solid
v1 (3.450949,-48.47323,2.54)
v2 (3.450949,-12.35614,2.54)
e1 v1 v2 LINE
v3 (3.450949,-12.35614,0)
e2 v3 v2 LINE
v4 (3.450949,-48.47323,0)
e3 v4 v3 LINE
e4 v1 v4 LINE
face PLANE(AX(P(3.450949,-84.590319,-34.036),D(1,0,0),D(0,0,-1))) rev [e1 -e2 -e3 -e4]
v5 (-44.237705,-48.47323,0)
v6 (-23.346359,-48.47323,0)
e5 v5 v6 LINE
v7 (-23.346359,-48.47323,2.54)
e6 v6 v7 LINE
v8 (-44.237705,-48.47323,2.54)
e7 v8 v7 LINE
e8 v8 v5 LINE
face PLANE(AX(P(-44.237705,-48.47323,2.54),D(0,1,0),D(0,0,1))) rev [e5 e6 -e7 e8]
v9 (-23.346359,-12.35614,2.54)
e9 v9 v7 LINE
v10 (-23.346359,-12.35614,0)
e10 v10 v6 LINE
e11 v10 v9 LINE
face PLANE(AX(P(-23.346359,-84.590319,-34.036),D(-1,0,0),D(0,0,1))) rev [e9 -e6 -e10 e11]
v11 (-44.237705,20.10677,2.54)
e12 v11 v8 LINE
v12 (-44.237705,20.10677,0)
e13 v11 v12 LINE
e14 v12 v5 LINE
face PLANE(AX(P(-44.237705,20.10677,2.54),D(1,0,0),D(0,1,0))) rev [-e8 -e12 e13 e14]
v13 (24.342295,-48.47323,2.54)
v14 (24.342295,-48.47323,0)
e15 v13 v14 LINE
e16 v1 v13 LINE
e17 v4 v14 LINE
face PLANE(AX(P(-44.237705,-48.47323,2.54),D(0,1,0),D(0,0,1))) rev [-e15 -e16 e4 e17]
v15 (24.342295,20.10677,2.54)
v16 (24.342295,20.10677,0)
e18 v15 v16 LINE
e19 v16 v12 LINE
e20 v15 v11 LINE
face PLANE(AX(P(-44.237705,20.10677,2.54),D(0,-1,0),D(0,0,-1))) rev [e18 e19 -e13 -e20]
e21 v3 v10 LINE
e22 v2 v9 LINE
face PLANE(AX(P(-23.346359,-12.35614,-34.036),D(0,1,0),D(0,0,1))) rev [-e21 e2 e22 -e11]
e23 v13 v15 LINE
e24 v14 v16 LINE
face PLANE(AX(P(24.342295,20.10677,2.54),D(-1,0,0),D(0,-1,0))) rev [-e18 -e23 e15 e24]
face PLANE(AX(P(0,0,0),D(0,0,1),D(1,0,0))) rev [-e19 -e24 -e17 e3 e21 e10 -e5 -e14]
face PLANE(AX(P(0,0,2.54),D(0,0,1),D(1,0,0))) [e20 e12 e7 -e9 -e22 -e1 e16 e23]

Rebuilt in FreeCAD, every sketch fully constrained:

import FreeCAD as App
import Part
import Sketcher
from FreeCAD import Vector
Q = App.Units.Quantity

doc = App.newDocument("Part")
params = doc.addObject("Spreadsheet::Sheet", "Params")
for row, (alias, value) in enumerate([
    ("sketch1_width", "2.7 in"),
    ("pad1_length", "0.1 in"),
    ("pocket1_length", "1.44 in"),
], start=1):
    params.set(f"A{row}", alias)
    params.set(f"B{row}", "=" + value)
    params.setAlias(f"B{row}", alias)

body = doc.addObject("PartDesign::Body", "Body")

# Sketch on XY plane
sketch1 = doc.addObject("Sketcher::SketchObject", "Sketch")
body.addObject(sketch1)
sketch1.AttachmentSupport = (doc.XY_Plane, [""])
sketch1.MapMode = "FlatFace"
sketch1.addGeometry(Part.LineSegment(Vector(-44, 20, 0), Vector(-44, -48, 0)), False)
sketch1.addGeometry(Part.LineSegment(Vector(-44, -48, 0), Vector(24, -48, 0)), False)
sketch1.addGeometry(Part.LineSegment(Vector(24, -48, 0), Vector(24, 20, 0)), False)
sketch1.addGeometry(Part.LineSegment(Vector(24, 20, 0), Vector(-44, 20, 0)), False)
sketch1.addConstraint(Sketcher.Constraint("Coincident", 0, 2, 1, 1))
sketch1.addConstraint(Sketcher.Constraint("Coincident", 1, 2, 2, 1))
sketch1.addConstraint(Sketcher.Constraint("Coincident", 2, 2, 3, 1))
sketch1.addConstraint(Sketcher.Constraint("Coincident", 3, 2, 0, 1))
sketch1.addConstraint(Sketcher.Constraint("Vertical", 0))
sketch1.addConstraint(Sketcher.Constraint("Horizontal", 1))
sketch1.addConstraint(Sketcher.Constraint("Vertical", 2))
sketch1.addConstraint(Sketcher.Constraint("Horizontal", 3))
sketch1.addConstraint(Sketcher.Constraint("Equal", 3, 0))
sketch1.addConstraint(Sketcher.Constraint("DistanceX", 1, 1, 1, 2, Q("2.7 in")))
sketch1.addConstraint(Sketcher.Constraint("DistanceY", 0, 2, -1, 1, Q("48.47323 mm")))
sketch1.addConstraint(Sketcher.Constraint("DistanceX", 0, 2, -1, 1, Q("44.237705 mm")))
sketch1.setExpression("Constraints[9]", "Params.sketch1_width")
pad1 = doc.addObject("PartDesign::Pad", "Pad")
body.addObject(pad1)
pad1.Profile = sketch1
pad1.setExpression("Length", "Params.pad1_length")

# Sketch on XY plane
sketch2 = doc.addObject("Sketcher::SketchObject", "Sketch001")
body.addObject(sketch2)
sketch2.AttachmentSupport = (doc.XY_Plane, [""])
sketch2.MapMode = "FlatFace"
sketch2.AttachmentOffset = App.Placement(Vector(0, 0, 0.1 * 25.4), App.Rotation())
sketch2.addGeometry(Part.LineSegment(Vector(-23, -12, 0), Vector(-23, -85, 0)), False)
sketch2.addGeometry(Part.LineSegment(Vector(-23, -85, 0), Vector(3, -85, 0)), False)
sketch2.addGeometry(Part.LineSegment(Vector(3, -85, 0), Vector(3, -12, 0)), False)
sketch2.addGeometry(Part.LineSegment(Vector(3, -12, 0), Vector(-23, -12, 0)), False)
sketch2.addConstraint(Sketcher.Constraint("Coincident", 0, 2, 1, 1))
sketch2.addConstraint(Sketcher.Constraint("Coincident", 1, 2, 2, 1))
sketch2.addConstraint(Sketcher.Constraint("Coincident", 2, 2, 3, 1))
sketch2.addConstraint(Sketcher.Constraint("Coincident", 3, 2, 0, 1))
sketch2.addConstraint(Sketcher.Constraint("Vertical", 0))
sketch2.addConstraint(Sketcher.Constraint("Horizontal", 1))
sketch2.addConstraint(Sketcher.Constraint("Vertical", 2))
sketch2.addConstraint(Sketcher.Constraint("Horizontal", 3))
sketch2.addConstraint(Sketcher.Constraint("DistanceY", 0, 2, 0, 1, Q("72.234178 mm")))
sketch2.addConstraint(Sketcher.Constraint("DistanceX", 1, 1, 1, 2, Q("26.797308 mm")))
sketch2.addConstraint(Sketcher.Constraint("DistanceX", 0, 2, -1, 1, Q("23.346359 mm")))
sketch2.addConstraint(Sketcher.Constraint("DistanceY", 0, 2, -1, 1, Q("84.590319 mm")))
pocket1 = doc.addObject("PartDesign::Pocket", "Pocket")
body.addObject(pocket1)
pocket1.Profile = sketch2
pocket1.setExpression("Length", "Params.pocket1_length")

doc.recompute()
